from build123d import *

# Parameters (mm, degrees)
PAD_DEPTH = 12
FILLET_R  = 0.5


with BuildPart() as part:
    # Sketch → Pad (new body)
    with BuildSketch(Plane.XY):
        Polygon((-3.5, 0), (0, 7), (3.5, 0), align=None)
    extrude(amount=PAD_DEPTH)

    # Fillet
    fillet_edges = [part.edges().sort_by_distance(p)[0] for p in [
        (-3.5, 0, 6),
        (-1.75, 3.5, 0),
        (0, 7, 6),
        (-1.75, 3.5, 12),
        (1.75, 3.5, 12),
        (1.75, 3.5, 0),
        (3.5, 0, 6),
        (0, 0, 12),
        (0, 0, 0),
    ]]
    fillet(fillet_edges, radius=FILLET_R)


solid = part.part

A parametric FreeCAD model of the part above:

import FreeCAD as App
import Part
import Sketcher

doc = App.newDocument("Part")
params = doc.addObject("Spreadsheet::Sheet", "Params")
for row, (alias, value) in enumerate([
    ("sketch1_width", "7 mm"),
    ("pad1_length", "12 mm"),
    ("fillet_radius", "0.5 mm"),
], start=1):
    params.set(f"A{row}", alias)
    params.set(f"B{row}", "=" + value)
    params.setAlias(f"B{row}", alias)

body = doc.addObject("PartDesign::Body", "Body")

sketch1 = doc.addObject("Sketcher::SketchObject", "Sketch")
body.addObject(sketch1)
sketch1.AttachmentSupport = (doc.XY_Plane, [""])
sketch1.MapMode = "FlatFace"
sketch1.addGeometry(Part.LineSegment(App.Vector(0, 7, 0), App.Vector(-4, 0, 0)), False)
sketch1.addGeometry(Part.LineSegment(App.Vector(-4, 0, 0), App.Vector(4, 0, 0)), False)
sketch1.addGeometry(Part.LineSegment(App.Vector(4, 0, 0), App.Vector(0, 7, 0)), False)
sketch1.addConstraint(Sketcher.Constraint("Coincident", 0, 2, 1, 1))
sketch1.addConstraint(Sketcher.Constraint("Coincident", 1, 2, 2, 1))
sketch1.addConstraint(Sketcher.Constraint("Coincident", 2, 2, 0, 1))
sketch1.addConstraint(Sketcher.Constraint("Horizontal", 1))
sketch1.addConstraint(Sketcher.Constraint("Symmetric", 0, 2, 1, 2, -1, 1))
sketch1.addConstraint(Sketcher.Constraint("PointOnObject", 2, 2, -2))
sketch1.addConstraint(Sketcher.Constraint("DistanceX", 1, 1, 1, 2, 7.0))
sketch1.addConstraint(Sketcher.Constraint("DistanceY", -1, 1, 2, 2, 7.0))
sketch1.setExpression("Constraints[6]", "Params.sketch1_width")
pad1 = doc.addObject("PartDesign::Pad", "Pad")
body.addObject(pad1)
pad1.Profile = sketch1
pad1.setExpression("Length", "Params.pad1_length")
doc.recompute()

fillet = doc.addObject("PartDesign::Fillet", "Fillet")
body.addObject(fillet)
fillet.Base = (pad1, ["Edge1"])
fillet.UseAllEdges = True
fillet.setExpression("Radius", "Params.fillet_radius")

doc.recompute()
